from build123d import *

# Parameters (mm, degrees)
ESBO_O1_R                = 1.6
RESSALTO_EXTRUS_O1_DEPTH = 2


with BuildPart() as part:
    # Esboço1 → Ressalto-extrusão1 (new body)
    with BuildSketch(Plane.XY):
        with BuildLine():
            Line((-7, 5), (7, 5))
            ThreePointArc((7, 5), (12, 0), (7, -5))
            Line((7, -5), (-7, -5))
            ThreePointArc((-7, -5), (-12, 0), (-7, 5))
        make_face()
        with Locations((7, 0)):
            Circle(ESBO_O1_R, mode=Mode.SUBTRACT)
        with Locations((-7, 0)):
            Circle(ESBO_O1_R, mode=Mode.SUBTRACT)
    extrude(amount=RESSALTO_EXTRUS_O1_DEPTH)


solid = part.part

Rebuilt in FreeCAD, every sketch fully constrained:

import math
import FreeCAD as App
import Part
import Sketcher

doc = App.newDocument("Part")
body = doc.addObject("PartDesign::Body", "Body")

sketch1 = body.newObject("Sketcher::SketchObject", "Sketch")
sketch1.AttachmentSupport = (doc.getObject("XY_Plane"), [""])
sketch1.MapMode = "FlatFace"
sketch1.addGeometry(Part.LineSegment(App.Vector(7, 5, 0), App.Vector(-7, 5, 0)), False)
sketch1.addGeometry(Part.ArcOfCircle(Part.Circle(App.Vector(-7, 0, 0), App.Vector(0, 0, 1), 5), math.radians(90), math.radians(270)), False)
sketch1.addGeometry(Part.LineSegment(App.Vector(-7, -5, 0), App.Vector(7, -5, 0)), False)
sketch1.addGeometry(Part.ArcOfCircle(Part.Circle(App.Vector(7, 0, 0), App.Vector(0, 0, 1), 5), math.radians(-90), math.radians(90)), False)
sketch1.addGeometry(Part.Circle(App.Vector(7, 0, 0), App.Vector(0, 0, 1), 1.6), False)
sketch1.addGeometry(Part.Circle(App.Vector(-7, 0, 0), App.Vector(0, 0, 1), 1.6), False)
sketch1.addConstraint(Sketcher.Constraint("Tangent", 0, 2, 1, 1))
sketch1.addConstraint(Sketcher.Constraint("Tangent", 1, 2, 2, 1))
sketch1.addConstraint(Sketcher.Constraint("Tangent", 2, 2, 3, 1))
sketch1.addConstraint(Sketcher.Constraint("Tangent", 3, 2, 0, 1))
sketch1.addConstraint(Sketcher.Constraint("Horizontal", 0))
sketch1.addConstraint(Sketcher.Constraint("Horizontal", 2))
sketch1.addConstraint(Sketcher.Constraint("Coincident", 4, 3, 3, 3))
sketch1.addConstraint(Sketcher.Constraint("Coincident", 5, 3, 1, 3))
sketch1.addConstraint(Sketcher.Constraint("Equal", 4, 5))
sketch1.addConstraint(Sketcher.Constraint("Symmetric", 1, 3, 3, 3, -1, 1))
sketch1.addConstraint(Sketcher.Constraint("Radius", 1, 5.0))
sketch1.addConstraint(Sketcher.Constraint("Diameter", 4, 3.2))
sketch1.addConstraint(Sketcher.Constraint("DistanceX", 0, 2, 0, 1, 14.0))
pad1 = body.newObject("PartDesign::Pad", "Pad")
pad1.Profile = sketch1
pad1.Length = 2

doc.recompute()
